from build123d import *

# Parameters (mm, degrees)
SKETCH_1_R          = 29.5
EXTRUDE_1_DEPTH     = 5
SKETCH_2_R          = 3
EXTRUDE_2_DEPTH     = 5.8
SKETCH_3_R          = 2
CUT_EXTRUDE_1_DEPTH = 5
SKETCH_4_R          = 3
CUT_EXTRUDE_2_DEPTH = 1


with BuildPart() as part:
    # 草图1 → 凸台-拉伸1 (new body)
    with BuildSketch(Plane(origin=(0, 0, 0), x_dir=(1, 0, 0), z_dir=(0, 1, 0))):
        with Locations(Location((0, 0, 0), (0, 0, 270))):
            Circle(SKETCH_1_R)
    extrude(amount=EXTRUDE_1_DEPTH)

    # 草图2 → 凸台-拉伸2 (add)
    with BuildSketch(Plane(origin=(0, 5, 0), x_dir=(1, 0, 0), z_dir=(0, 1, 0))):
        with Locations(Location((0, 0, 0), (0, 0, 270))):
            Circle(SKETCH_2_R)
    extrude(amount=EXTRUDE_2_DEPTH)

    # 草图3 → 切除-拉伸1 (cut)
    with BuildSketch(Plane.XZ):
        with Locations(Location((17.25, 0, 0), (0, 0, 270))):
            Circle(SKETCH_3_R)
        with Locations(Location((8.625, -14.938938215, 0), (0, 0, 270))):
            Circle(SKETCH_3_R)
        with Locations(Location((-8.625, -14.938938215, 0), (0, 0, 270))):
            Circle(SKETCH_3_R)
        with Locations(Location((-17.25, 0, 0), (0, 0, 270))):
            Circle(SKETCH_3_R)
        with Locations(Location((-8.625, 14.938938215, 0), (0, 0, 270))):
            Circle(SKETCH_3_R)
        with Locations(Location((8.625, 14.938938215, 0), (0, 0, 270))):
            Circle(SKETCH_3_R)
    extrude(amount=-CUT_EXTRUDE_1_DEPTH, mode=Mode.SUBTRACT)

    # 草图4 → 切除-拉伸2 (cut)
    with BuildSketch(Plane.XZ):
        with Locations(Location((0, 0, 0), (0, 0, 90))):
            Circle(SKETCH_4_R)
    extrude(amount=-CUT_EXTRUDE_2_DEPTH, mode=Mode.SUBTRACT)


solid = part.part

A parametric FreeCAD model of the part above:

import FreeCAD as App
import Part
import Sketcher
Q = App.Units.Quantity

doc = App.newDocument("Part")
body = doc.addObject("PartDesign::Body", "Body")

sketch1 = doc.addObject("Sketcher::SketchObject", "Sketch")
body.addObject(sketch1)
sketch1.AttachmentSupport = (doc.XZ_Plane, [""])
sketch1.MapMode = "FlatFace"
sketch1.addGeometry(Part.Circle(App.Vector(0, 0, 0), App.Vector(0, 0, 1), 30), False)
sketch1.addConstraint(Sketcher.Constraint("Coincident", 0, 3, -1, 1))
sketch1.addConstraint(Sketcher.Constraint("Diameter", 0, Q("59 mm")))
pad1 = doc.addObject("PartDesign::Pad", "Pad")
body.addObject(pad1)
pad1.Profile = sketch1
pad1.Length = 5
pad1.Reversed = True

sketch2 = doc.addObject("Sketcher::SketchObject", "Sketch001")
body.addObject(sketch2)
sketch2.AttachmentSupport = (doc.XZ_Plane, [""])
sketch2.MapMode = "FlatFace"
sketch2.AttachmentOffset = App.Placement(App.Vector(0, 0, -5), App.Rotation())
sketch2.addGeometry(Part.Circle(App.Vector(0, 0, 0), App.Vector(0, 0, 1), 3), False)
sketch2.addConstraint(Sketcher.Constraint("Coincident", 0, 3, -1, 1))
sketch2.addConstraint(Sketcher.Constraint("Diameter", 0, Q("6 mm")))
pad2 = doc.addObject("PartDesign::Pad", "Pad001")
body.addObject(pad2)
pad2.Profile = sketch2
pad2.Length = 5.8
pad2.Reversed = True

sketch3 = doc.addObject("Sketcher::SketchObject", "Sketch002")
body.addObject(sketch3)
sketch3.AttachmentSupport = (doc.XZ_Plane, [""])
sketch3.MapMode = "FlatFace"
sketch3.addGeometry(Part.Circle(App.Vector(17.2, 0, 0), App.Vector(0, 0, 1), 2), False)
sketch3.addGeometry(Part.Circle(App.Vector(8.6, -14.9, 0), App.Vector(0, 0, 1), 2), False)
sketch3.addGeometry(Part.Circle(App.Vector(-8.6, -14.9, 0), App.Vector(0, 0, 1), 2), False)
sketch3.addGeometry(Part.Circle(App.Vector(-17.2, 0, 0), App.Vector(0, 0, 1), 2), False)
sketch3.addGeometry(Part.Circle(App.Vector(-8.6, 14.9, 0), App.Vector(0, 0, 1), 2), False)
sketch3.addGeometry(Part.Circle(App.Vector(8.6, 14.9, 0), App.Vector(0, 0, 1), 2), False)
sketch3.addConstraint(Sketcher.Constraint("Equal", 0, 1))
sketch3.addConstraint(Sketcher.Constraint("Equal", 1, 2))
sketch3.addConstraint(Sketcher.Constraint("Equal", 2, 3))
sketch3.addConstraint(Sketcher.Constraint("Equal", 3, 4))
sketch3.addConstraint(Sketcher.Constraint("Equal", 4, 5))
sketch3.addConstraint(Sketcher.Constraint("Symmetric", 0, 3, 3, 3, -1, 1))
sketch3.addConstraint(Sketcher.Constraint("Symmetric", 1, 3, 4, 3, -1, 1))
sketch3.addConstraint(Sketcher.Constraint("Symmetric", 2, 3, 5, 3, -1, 1))
sketch3.addConstraint(Sketcher.Constraint("Symmetric", 1, 3, 2, 3, -2))
sketch3.addConstraint(Sketcher.Constraint("PointOnObject", 0, 3, -1))
sketch3.addConstraint(Sketcher.Constraint("Diameter", 0, Q("4 mm")))
sketch3.addConstraint(Sketcher.Constraint("DistanceX", 3, 3, 0, 3, Q("34.5 mm")))
sketch3.addConstraint(Sketcher.Constraint("DistanceX", 2, 3, 1, 3, Q("17.25 mm")))
sketch3.addConstraint(Sketcher.Constraint("DistanceY", 1, 3, -1, 1, Q("14.938938 mm")))
pocket1 = doc.addObject("PartDesign::Pocket", "Pocket")
body.addObject(pocket1)
pocket1.Profile = sketch3
pocket1.Length = 5

sketch4 = doc.addObject("Sketcher::SketchObject", "Sketch003")
body.addObject(sketch4)
sketch4.AttachmentSupport = (doc.XZ_Plane, [""])
sketch4.MapMode = "FlatFace"
sketch4.addGeometry(Part.Circle(App.Vector(0, 0, 0), App.Vector(0, 0, 1), 3), False)
sketch4.addConstraint(Sketcher.Constraint("Coincident", 0, 3, -1, 1))
sketch4.addConstraint(Sketcher.Constraint("Diameter", 0, Q("6 mm")))
pocket2 = doc.addObject("PartDesign::Pocket", "Pocket001")
body.addObject(pocket2)
pocket2.Profile = sketch4
pocket2.Length = 1

doc.recompute()
